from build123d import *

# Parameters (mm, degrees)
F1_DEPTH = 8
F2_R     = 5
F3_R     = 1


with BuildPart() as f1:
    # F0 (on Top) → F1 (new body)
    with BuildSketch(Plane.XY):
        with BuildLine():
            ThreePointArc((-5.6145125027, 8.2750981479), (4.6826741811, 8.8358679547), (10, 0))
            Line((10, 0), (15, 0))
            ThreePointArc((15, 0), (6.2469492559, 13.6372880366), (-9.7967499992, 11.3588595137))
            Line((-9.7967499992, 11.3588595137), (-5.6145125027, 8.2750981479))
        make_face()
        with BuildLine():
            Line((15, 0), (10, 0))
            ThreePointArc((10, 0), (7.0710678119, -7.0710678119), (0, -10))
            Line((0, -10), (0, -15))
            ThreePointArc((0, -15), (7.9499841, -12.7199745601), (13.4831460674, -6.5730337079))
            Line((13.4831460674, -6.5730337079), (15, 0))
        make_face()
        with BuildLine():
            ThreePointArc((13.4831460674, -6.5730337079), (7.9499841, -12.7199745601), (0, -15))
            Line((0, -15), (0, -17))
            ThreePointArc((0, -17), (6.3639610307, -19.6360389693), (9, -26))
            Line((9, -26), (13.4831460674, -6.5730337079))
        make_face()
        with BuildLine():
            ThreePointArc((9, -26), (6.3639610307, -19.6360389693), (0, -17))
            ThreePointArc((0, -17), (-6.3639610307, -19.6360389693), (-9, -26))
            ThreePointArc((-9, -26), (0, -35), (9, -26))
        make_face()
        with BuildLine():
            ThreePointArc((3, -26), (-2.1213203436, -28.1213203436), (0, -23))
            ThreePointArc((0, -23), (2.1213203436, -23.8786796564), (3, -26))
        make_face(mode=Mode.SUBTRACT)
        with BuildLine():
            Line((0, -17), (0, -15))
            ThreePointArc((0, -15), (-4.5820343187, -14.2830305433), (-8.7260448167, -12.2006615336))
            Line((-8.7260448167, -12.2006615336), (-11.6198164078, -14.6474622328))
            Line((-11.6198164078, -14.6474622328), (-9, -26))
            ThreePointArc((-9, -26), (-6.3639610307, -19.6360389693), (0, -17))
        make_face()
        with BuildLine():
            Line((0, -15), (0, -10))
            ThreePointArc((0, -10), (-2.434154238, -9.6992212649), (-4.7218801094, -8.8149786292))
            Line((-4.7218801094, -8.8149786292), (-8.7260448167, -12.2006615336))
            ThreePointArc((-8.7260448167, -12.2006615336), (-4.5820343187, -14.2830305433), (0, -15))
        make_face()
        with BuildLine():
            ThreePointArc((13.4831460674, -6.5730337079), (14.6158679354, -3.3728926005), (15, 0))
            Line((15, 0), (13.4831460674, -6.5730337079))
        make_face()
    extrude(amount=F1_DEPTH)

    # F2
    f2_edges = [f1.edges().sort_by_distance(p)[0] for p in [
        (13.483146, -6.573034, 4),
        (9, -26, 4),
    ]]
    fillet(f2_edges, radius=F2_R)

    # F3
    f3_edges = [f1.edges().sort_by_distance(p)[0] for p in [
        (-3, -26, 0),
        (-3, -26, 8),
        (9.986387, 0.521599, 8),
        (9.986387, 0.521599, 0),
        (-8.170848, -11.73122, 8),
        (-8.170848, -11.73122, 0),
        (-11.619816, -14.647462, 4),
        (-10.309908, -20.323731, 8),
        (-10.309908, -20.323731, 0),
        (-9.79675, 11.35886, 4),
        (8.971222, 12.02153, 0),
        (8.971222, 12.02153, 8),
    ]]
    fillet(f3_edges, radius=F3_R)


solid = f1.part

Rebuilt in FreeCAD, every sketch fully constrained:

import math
import FreeCAD as App
import Part
import Sketcher
from FreeCAD import Vector
Q = App.Units.Quantity


def edges_at(feature, points):
    """Names of the edges that pass closest to the given points."""
    edges = feature.Shape.Edges
    near = lambda p: min(range(len(edges)), key=lambda i: edges[i].distToShape(Part.Vertex(*p))[0])
    return sorted({f"Edge{near(p) + 1}" for p in points})

doc = App.newDocument("Part")
body = doc.addObject("PartDesign::Body", "Body")

sketch1 = doc.addObject("Sketcher::SketchObject", "Sketch")
body.addObject(sketch1)
sketch1.AttachmentSupport = (doc.XY_Plane, [""])
sketch1.MapMode = "FlatFace"
sketch1.addGeometry(Part.ArcOfCircle(Part.Circle(Vector(0, 0, 0), Vector(0, 0, 1), 10), math.radians(0), math.radians(124)), False)
sketch1.addGeometry(Part.ArcOfCircle(Part.Circle(Vector(0, 0, 0), Vector(0, 0, 1), 10), math.radians(-90), math.radians(0)), False)
sketch1.addGeometry(Part.ArcOfCircle(Part.Circle(Vector(0, 0, 0), Vector(0, 0, 1), 10), math.radians(-118), math.radians(-90)), False)
sketch1.addGeometry(Part.LineSegment(Vector(-4.7, -8.8, 0), Vector(-8.7, -12.2, 0)), False)
sketch1.addGeometry(Part.LineSegment(Vector(-8.7, -12.2, 0), Vector(-11.6, -14.6, 0)), False)
sketch1.addGeometry(Part.LineSegment(Vector(-11.6, -14.6, 0), Vector(-9, -26, 0)), False)
sketch1.addGeometry(Part.ArcOfCircle(Part.Circle(Vector(0, -26, 0), Vector(0, 0, 1), 9), math.radians(180), math.radians(360)), False)
sketch1.addGeometry(Part.LineSegment(Vector(9, -26, 0), Vector(13.5, -6.6, 0)), False)
sketch1.addGeometry(Part.ArcOfCircle(Part.Circle(Vector(0, 0, 0), Vector(0, 0, 1), 15), math.radians(-26), math.radians(0)), False)
sketch1.addGeometry(Part.ArcOfCircle(Part.Circle(Vector(0, 0, 0), Vector(0, 0, 1), 15), math.radians(0), math.radians(131)), False)
sketch1.addGeometry(Part.LineSegment(Vector(-9.8, 11.4, 0), Vector(-5.6, 8.3, 0)), False)
sketch1.addGeometry(Part.ArcOfCircle(Part.Circle(Vector(0, -26, 0), Vector(0, 0, 1), 3), math.radians(0), math.radians(90)), False)
sketch1.addGeometry(Part.ArcOfCircle(Part.Circle(Vector(0, -26, 0), Vector(0, 0, 1), 3), math.radians(90), math.radians(360)), False)
sketch1.addConstraint(Sketcher.Constraint("Tangent", 0, 1, 1, 2))
sketch1.addConstraint(Sketcher.Constraint("Tangent", 1, 1, 2, 2))
sketch1.addConstraint(Sketcher.Constraint("Coincident", 2, 1, 3, 1))
sketch1.addConstraint(Sketcher.Constraint("Coincident", 3, 2, 4, 1))
sketch1.addConstraint(Sketcher.Constraint("Coincident", 4, 2, 5, 1))
sketch1.addConstraint(Sketcher.Constraint("Coincident", 5, 2, 6, 1))
sketch1.addConstraint(Sketcher.Constraint("Coincident", 6, 2, 7, 1))
sketch1.addConstraint(Sketcher.Constraint("Coincident", 7, 2, 8, 1))
sketch1.addConstraint(Sketcher.Constraint("Tangent", 8, 2, 9, 1))
sketch1.addConstraint(Sketcher.Constraint("Coincident", 9, 2, 10, 1))
sketch1.addConstraint(Sketcher.Constraint("Coincident", 10, 2, 0, 2))
sketch1.addConstraint(Sketcher.Constraint("Tangent", 11, 1, 12, 2))
sketch1.addConstraint(Sketcher.Constraint("Coincident", 12, 1, 11, 2))
sketch1.addConstraint(Sketcher.Constraint("Coincident", 0, 3, -1, 1))
sketch1.addConstraint(Sketcher.Constraint("Coincident", 2, 3, -1, 1))
sketch1.addConstraint(Sketcher.Constraint("Coincident", 8, 3, -1, 1))
sketch1.addConstraint(Sketcher.Constraint("Coincident", 11, 3, 6, 3))
sketch1.addConstraint(Sketcher.Constraint("Equal", 8, 9))
sketch1.addConstraint(Sketcher.Constraint("Symmetric", 5, 2, 6, 2, -2))
sketch1.addConstraint(Sketcher.Constraint("PointOnObject", 0, 1, -1))
sketch1.addConstraint(Sketcher.Constraint("PointOnObject", 1, 1, -2))
sketch1.addConstraint(Sketcher.Constraint("PointOnObject", 8, 2, -1))
sketch1.addConstraint(Sketcher.Constraint("PointOnObject", 12, 1, -2))
sketch1.addConstraint(Sketcher.Constraint("Parallel", 3, 4))
sketch1.addConstraint(Sketcher.Constraint("Horizontal", 12, 3, 5, 2))
sketch1.addConstraint(Sketcher.Constraint("Horizontal", 6, 2, 11, 1))
sketch1.addConstraint(Sketcher.Constraint("Radius", 0, Q("10 mm")))
sketch1.addConstraint(Sketcher.Constraint("Radius", 6, Q("9 mm")))
sketch1.addConstraint(Sketcher.Constraint("Radius", 8, Q("15 mm")))
sketch1.addConstraint(Sketcher.Constraint("Radius", 11, Q("3 mm")))
sketch1.addConstraint(Sketcher.Constraint("DistanceY", 6, 3, -1, 1, Q("26 mm")))
sketch1.addConstraint(Sketcher.Constraint("DistanceY", -1, 1, 10, 2, Q("8.275098 mm")))
sketch1.addConstraint(Sketcher.Constraint("DistanceY", 4, 2, 3, 2, Q("2.446801 mm")))
sketch1.addConstraint(Sketcher.Constraint("Distance", 3, Q("5.24368 mm")))
sketch1.addConstraint(Sketcher.Constraint("Distance", 10, Q("5.196219 mm")))
sketch1.addConstraint(Sketcher.Constraint("DistanceX", 2, 1, -1, 1, Q("4.72188 mm")))
sketch1.addConstraint(Sketcher.Constraint("DistanceY", 3, 2, -1, 1, Q("12.200662 mm")))
sketch1.addConstraint(Sketcher.Constraint("Distance", 7, Q("19.937543 mm")))
pad1 = doc.addObject("PartDesign::Pad", "Pad")
body.addObject(pad1)
pad1.Profile = sketch1
pad1.Length = 8
doc.recompute()

fillet = doc.addObject("PartDesign::Fillet", "Fillet")
body.addObject(fillet)
fillet.Base = (pad1, edges_at(pad1, [(13.483, -6.573, 4), (9, -26, 4)]))
fillet.Radius = 5
doc.recompute()

fillet2 = doc.addObject("PartDesign::Fillet", "Fillet001")
body.addObject(fillet2)
fillet2.Base = (fillet, edges_at(fillet, [
    (-2.121, -28.121, 0),
    (-2.121, -28.121, 8),
    (4.683, 8.836, 8),
    (4.683, 8.836, 0),
    (-6.724, -10.508, 8),
    (-6.724, -10.508, 0),
    (-11.62, -14.647, 4),
    (-10.31, -20.324, 8),
    (-10.31, -20.324, 0),
    (-9.797, 11.359, 4),
    (6.247, 13.637, 0),
    (6.247, 13.637, 8),
]))
fillet2.Radius = 1

doc.recompute()
